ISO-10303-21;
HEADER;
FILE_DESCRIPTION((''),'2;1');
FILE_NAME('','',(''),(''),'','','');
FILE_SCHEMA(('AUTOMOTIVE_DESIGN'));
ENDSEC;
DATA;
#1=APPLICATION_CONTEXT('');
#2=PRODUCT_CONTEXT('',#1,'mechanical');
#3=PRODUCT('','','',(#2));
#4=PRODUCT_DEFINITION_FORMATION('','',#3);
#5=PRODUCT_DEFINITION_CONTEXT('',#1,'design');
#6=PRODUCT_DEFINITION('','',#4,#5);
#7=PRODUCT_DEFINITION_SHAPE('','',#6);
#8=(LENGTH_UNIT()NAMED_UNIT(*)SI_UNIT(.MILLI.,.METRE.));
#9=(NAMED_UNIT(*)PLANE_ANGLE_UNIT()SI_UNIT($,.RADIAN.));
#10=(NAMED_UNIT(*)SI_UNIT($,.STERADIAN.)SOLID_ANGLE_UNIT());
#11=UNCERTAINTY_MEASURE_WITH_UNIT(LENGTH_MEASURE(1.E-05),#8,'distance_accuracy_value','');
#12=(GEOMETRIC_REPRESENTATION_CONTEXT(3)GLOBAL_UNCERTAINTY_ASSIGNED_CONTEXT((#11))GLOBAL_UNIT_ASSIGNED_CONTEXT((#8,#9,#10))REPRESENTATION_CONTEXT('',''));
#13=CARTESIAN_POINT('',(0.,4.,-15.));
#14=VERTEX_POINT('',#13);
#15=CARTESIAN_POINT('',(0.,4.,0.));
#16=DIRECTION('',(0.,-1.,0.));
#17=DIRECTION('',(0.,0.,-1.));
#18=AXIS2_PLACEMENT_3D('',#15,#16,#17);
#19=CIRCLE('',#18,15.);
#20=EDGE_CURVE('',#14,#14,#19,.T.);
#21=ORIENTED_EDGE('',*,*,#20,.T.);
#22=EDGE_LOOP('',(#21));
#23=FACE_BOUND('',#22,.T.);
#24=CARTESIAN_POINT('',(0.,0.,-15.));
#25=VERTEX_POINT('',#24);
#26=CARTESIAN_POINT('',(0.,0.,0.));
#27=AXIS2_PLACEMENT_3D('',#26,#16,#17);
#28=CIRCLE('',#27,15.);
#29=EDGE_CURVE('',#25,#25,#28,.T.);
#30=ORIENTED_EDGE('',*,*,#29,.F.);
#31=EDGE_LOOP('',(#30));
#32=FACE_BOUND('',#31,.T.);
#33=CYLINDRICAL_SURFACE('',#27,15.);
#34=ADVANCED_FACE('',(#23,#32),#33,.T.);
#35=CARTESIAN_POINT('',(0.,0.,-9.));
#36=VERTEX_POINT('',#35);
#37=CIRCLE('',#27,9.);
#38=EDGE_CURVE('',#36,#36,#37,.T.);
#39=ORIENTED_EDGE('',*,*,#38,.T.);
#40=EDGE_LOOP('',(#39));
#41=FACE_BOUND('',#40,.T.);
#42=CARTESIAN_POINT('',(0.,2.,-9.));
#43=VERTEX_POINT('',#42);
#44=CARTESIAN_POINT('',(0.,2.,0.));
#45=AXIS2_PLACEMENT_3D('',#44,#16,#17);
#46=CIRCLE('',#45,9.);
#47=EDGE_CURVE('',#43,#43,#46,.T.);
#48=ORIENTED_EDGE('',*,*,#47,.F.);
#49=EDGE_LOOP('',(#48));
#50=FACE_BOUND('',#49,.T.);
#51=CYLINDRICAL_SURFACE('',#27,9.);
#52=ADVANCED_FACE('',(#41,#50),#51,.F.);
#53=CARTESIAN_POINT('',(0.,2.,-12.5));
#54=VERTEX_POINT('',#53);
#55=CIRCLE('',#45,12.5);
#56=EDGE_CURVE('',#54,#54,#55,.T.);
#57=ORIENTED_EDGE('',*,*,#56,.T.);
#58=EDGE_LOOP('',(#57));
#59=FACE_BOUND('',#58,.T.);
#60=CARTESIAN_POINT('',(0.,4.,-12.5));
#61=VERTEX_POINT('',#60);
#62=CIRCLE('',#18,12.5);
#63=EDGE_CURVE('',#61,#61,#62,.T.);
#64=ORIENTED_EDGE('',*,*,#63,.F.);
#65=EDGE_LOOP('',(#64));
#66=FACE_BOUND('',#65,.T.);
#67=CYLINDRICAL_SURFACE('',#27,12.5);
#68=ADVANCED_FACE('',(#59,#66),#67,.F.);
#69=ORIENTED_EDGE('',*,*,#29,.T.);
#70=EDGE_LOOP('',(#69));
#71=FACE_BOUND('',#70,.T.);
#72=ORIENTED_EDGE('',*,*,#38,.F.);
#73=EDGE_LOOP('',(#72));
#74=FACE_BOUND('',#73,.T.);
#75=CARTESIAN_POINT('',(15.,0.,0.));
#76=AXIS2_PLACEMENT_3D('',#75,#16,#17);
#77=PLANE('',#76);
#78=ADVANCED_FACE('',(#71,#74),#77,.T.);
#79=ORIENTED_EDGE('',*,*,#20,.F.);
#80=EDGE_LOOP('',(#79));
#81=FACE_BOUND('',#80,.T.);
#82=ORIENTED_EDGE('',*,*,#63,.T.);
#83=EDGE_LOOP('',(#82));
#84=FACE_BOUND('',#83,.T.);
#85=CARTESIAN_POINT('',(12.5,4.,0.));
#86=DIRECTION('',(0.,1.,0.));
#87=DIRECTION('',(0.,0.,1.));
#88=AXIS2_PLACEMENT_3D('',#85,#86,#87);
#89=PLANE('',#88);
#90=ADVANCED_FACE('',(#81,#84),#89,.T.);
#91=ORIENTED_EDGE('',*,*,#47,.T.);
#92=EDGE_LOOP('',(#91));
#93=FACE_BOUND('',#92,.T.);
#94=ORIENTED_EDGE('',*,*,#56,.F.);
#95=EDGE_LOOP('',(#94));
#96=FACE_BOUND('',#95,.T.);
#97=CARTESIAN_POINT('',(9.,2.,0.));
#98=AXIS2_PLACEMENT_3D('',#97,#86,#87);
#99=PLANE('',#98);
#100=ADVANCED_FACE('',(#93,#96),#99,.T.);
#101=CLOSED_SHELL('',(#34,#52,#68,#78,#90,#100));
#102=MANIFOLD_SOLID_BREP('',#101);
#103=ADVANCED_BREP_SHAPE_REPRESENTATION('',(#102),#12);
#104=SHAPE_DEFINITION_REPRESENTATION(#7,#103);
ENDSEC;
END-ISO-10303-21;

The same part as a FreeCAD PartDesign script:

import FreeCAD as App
import Part
import Sketcher

doc = App.newDocument("Part")
body = doc.addObject("PartDesign::Body", "Body")

sketch1 = body.newObject("Sketcher::SketchObject", "Sketch")
sketch1.AttachmentSupport = (doc.getObject("XY_Plane"), [""])
sketch1.MapMode = "FlatFace"
sketch1.addGeometry(Part.LineSegment(App.Vector(9, 2, 0), App.Vector(9, 0, 0)), False)
sketch1.addGeometry(Part.LineSegment(App.Vector(9, 0, 0), App.Vector(15, 0, 0)), False)
sketch1.addGeometry(Part.LineSegment(App.Vector(15, 0, 0), App.Vector(15, 4, 0)), False)
sketch1.addGeometry(Part.LineSegment(App.Vector(15, 4, 0), App.Vector(12.5, 4, 0)), False)
sketch1.addGeometry(Part.LineSegment(App.Vector(12.5, 4, 0), App.Vector(12.5, 2, 0)), False)
sketch1.addGeometry(Part.LineSegment(App.Vector(12.5, 2, 0), App.Vector(9, 2, 0)), False)
sketch1.addConstraint(Sketcher.Constraint("Coincident", 0, 2, 1, 1))
sketch1.addConstraint(Sketcher.Constraint("Coincident", 1, 2, 2, 1))
sketch1.addConstraint(Sketcher.Constraint("Coincident", 2, 2, 3, 1))
sketch1.addConstraint(Sketcher.Constraint("Coincident", 3, 2, 4, 1))
sketch1.addConstraint(Sketcher.Constraint("Coincident", 4, 2, 5, 1))
sketch1.addConstraint(Sketcher.Constraint("Coincident", 5, 2, 0, 1))
sketch1.addConstraint(Sketcher.Constraint("Vertical", 0))
sketch1.addConstraint(Sketcher.Constraint("Horizontal", 1))
sketch1.addConstraint(Sketcher.Constraint("Vertical", 2))
sketch1.addConstraint(Sketcher.Constraint("Horizontal", 3))
sketch1.addConstraint(Sketcher.Constraint("Vertical", 4))
sketch1.addConstraint(Sketcher.Constraint("Horizontal", 5))
sketch1.addConstraint(Sketcher.Constraint("PointOnObject", 0, 2, -1))
sketch1.addConstraint(Sketcher.Constraint("Equal", 0, 4))
sketch1.addConstraint(Sketcher.Constraint("DistanceX", 1, 1, 1, 2, 6.0))
sketch1.addConstraint(Sketcher.Constraint("DistanceY", 0, 2, 0, 1, 2.0))
sketch1.addConstraint(Sketcher.Constraint("DistanceX", 3, 2, 3, 1, 2.5))
sketch1.addConstraint(Sketcher.Constraint("DistanceX", -1, 1, 0, 2, 9.0))
revolution = body.newObject("PartDesign::Revolution", "Revolution")
revolution.Profile = sketch1
revolution.ReferenceAxis = (sketch1, ["V_Axis"])
revolution.Angle = 360

doc.recompute()
